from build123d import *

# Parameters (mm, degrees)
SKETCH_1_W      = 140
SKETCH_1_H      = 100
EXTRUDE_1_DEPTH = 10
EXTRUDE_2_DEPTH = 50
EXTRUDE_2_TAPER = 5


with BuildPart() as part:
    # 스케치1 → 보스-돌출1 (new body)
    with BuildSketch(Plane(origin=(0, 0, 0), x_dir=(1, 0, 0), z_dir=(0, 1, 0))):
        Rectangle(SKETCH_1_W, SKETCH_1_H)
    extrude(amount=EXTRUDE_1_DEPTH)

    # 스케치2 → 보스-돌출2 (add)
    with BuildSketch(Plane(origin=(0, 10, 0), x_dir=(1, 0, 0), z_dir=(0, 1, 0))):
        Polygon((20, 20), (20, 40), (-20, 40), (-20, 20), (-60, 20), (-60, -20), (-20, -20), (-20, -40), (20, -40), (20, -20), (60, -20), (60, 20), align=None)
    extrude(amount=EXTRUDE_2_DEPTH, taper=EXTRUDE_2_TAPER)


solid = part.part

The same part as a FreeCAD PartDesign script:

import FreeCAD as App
import Part
import Sketcher

doc = App.newDocument("Part")
body = doc.addObject("PartDesign::Body", "Body")

# Sketch on XZ plane
sketch1 = doc.addObject("Sketcher::SketchObject", "Sketch")
body.addObject(sketch1)
sketch1.AttachmentSupport = (doc.XZ_Plane, [""])
sketch1.MapMode = "FlatFace"
sketch1.addGeometry([
    Part.LineSegment(App.Vector(-70, -50, 0), App.Vector(-70, 50, 0)),
    Part.LineSegment(App.Vector(-70, 50, 0), App.Vector(70, 50, 0)),
    Part.LineSegment(App.Vector(70, 50, 0), App.Vector(70, -50, 0)),
    Part.LineSegment(App.Vector(70, -50, 0), App.Vector(-70, -50, 0)),
], False)
sketch1.addConstraint([
    Sketcher.Constraint("Coincident", 0, 2, 1, 1),
    Sketcher.Constraint("Coincident", 1, 2, 2, 1),
    Sketcher.Constraint("Coincident", 2, 2, 3, 1),
    Sketcher.Constraint("Coincident", 3, 2, 0, 1),
    Sketcher.Constraint("Vertical", 0),
    Sketcher.Constraint("Horizontal", 1),
    Sketcher.Constraint("Vertical", 2),
    Sketcher.Constraint("Horizontal", 3),
    Sketcher.Constraint("Symmetric", 0, 2, 2, 2, -1, 1),
    Sketcher.Constraint("DistanceX", 1, 1, 1, 2, 140.0),
    Sketcher.Constraint("DistanceY", 0, 1, 0, 2, 100.0),
])
pad1 = doc.addObject("PartDesign::Pad", "Pad")
body.addObject(pad1)
pad1.Profile = sketch1
pad1.Length = 10
pad1.Reversed = True

# Sketch on XZ plane
sketch2 = doc.addObject("Sketcher::SketchObject", "Sketch001")
body.addObject(sketch2)
sketch2.AttachmentSupport = (doc.XZ_Plane, [""])
sketch2.MapMode = "FlatFace"
sketch2.AttachmentOffset = App.Placement(App.Vector(0, 0, -10), App.Rotation())
sketch2.addGeometry([
    Part.LineSegment(App.Vector(20, -20, 0), App.Vector(20, -40, 0)),  # 0
    Part.LineSegment(App.Vector(20, -40, 0), App.Vector(-20, -40, 0)),  # 1
    Part.LineSegment(App.Vector(-20, -40, 0), App.Vector(-20, -20, 0)),  # 2
    Part.LineSegment(App.Vector(-20, -20, 0), App.Vector(-60, -20, 0)),  # 3
    Part.LineSegment(App.Vector(-60, -20, 0), App.Vector(-60, 20, 0)),  # 4
    Part.LineSegment(App.Vector(-60, 20, 0), App.Vector(-20, 20, 0)),  # 5
    Part.LineSegment(App.Vector(-20, 20, 0), App.Vector(-20, 40, 0)),  # 6
    Part.LineSegment(App.Vector(-20, 40, 0), App.Vector(20, 40, 0)),  # 7
    Part.LineSegment(App.Vector(20, 40, 0), App.Vector(20, 20, 0)),  # 8
    Part.LineSegment(App.Vector(20, 20, 0), App.Vector(60, 20, 0)),  # 9
    Part.LineSegment(App.Vector(60, 20, 0), App.Vector(60, -20, 0)),  # 10
    Part.LineSegment(App.Vector(60, -20, 0), App.Vector(20, -20, 0)),  # 11
], False)
sketch2.addConstraint([
    Sketcher.Constraint("Coincident", 0, 2, 1, 1),
    Sketcher.Constraint("Coincident", 1, 2, 2, 1),
    Sketcher.Constraint("Coincident", 2, 2, 3, 1),
    Sketcher.Constraint("Coincident", 3, 2, 4, 1),
    Sketcher.Constraint("Coincident", 4, 2, 5, 1),
    Sketcher.Constraint("Coincident", 5, 2, 6, 1),
    Sketcher.Constraint("Coincident", 6, 2, 7, 1),
    Sketcher.Constraint("Coincident", 7, 2, 8, 1),
    Sketcher.Constraint("Coincident", 8, 2, 9, 1),
    Sketcher.Constraint("Coincident", 9, 2, 10, 1),
    Sketcher.Constraint("Coincident", 10, 2, 11, 1),
    Sketcher.Constraint("Coincident", 11, 2, 0, 1),
    Sketcher.Constraint("Vertical", 0),
    Sketcher.Constraint("Horizontal", 1),
    Sketcher.Constraint("Vertical", 2),
    Sketcher.Constraint("Horizontal", 3),
    Sketcher.Constraint("Vertical", 4),
    Sketcher.Constraint("Horizontal", 5),
    Sketcher.Constraint("Vertical", 6),
    Sketcher.Constraint("Horizontal", 7),
    Sketcher.Constraint("Vertical", 8),
    Sketcher.Constraint("Horizontal", 9),
    Sketcher.Constraint("Vertical", 10),
    Sketcher.Constraint("Horizontal", 11),
    Sketcher.Constraint("Symmetric", 0, 2, 6, 2, -1, 1),
    Sketcher.Constraint("Symmetric", 2, 2, 8, 2, -1, 1),
    Sketcher.Constraint("Symmetric", 4, 2, 10, 2, -1, 1),
    Sketcher.Constraint("Symmetric", 5, 2, 8, 2, -2),
    Sketcher.Constraint("Equal", 1, 3),
    Sketcher.Constraint("Equal", 11, 4),
    Sketcher.Constraint("DistanceX", 1, 2, 1, 1, 40.0),
    Sketcher.Constraint("DistanceY", 0, 2, 0, 1, 20.0),
])
pad2 = doc.addObject("PartDesign::Pad", "Pad001")
body.addObject(pad2)
pad2.Profile = sketch2
pad2.Length = 50
pad2.Reversed = True
pad2.TaperAngle = -5

doc.recompute()
